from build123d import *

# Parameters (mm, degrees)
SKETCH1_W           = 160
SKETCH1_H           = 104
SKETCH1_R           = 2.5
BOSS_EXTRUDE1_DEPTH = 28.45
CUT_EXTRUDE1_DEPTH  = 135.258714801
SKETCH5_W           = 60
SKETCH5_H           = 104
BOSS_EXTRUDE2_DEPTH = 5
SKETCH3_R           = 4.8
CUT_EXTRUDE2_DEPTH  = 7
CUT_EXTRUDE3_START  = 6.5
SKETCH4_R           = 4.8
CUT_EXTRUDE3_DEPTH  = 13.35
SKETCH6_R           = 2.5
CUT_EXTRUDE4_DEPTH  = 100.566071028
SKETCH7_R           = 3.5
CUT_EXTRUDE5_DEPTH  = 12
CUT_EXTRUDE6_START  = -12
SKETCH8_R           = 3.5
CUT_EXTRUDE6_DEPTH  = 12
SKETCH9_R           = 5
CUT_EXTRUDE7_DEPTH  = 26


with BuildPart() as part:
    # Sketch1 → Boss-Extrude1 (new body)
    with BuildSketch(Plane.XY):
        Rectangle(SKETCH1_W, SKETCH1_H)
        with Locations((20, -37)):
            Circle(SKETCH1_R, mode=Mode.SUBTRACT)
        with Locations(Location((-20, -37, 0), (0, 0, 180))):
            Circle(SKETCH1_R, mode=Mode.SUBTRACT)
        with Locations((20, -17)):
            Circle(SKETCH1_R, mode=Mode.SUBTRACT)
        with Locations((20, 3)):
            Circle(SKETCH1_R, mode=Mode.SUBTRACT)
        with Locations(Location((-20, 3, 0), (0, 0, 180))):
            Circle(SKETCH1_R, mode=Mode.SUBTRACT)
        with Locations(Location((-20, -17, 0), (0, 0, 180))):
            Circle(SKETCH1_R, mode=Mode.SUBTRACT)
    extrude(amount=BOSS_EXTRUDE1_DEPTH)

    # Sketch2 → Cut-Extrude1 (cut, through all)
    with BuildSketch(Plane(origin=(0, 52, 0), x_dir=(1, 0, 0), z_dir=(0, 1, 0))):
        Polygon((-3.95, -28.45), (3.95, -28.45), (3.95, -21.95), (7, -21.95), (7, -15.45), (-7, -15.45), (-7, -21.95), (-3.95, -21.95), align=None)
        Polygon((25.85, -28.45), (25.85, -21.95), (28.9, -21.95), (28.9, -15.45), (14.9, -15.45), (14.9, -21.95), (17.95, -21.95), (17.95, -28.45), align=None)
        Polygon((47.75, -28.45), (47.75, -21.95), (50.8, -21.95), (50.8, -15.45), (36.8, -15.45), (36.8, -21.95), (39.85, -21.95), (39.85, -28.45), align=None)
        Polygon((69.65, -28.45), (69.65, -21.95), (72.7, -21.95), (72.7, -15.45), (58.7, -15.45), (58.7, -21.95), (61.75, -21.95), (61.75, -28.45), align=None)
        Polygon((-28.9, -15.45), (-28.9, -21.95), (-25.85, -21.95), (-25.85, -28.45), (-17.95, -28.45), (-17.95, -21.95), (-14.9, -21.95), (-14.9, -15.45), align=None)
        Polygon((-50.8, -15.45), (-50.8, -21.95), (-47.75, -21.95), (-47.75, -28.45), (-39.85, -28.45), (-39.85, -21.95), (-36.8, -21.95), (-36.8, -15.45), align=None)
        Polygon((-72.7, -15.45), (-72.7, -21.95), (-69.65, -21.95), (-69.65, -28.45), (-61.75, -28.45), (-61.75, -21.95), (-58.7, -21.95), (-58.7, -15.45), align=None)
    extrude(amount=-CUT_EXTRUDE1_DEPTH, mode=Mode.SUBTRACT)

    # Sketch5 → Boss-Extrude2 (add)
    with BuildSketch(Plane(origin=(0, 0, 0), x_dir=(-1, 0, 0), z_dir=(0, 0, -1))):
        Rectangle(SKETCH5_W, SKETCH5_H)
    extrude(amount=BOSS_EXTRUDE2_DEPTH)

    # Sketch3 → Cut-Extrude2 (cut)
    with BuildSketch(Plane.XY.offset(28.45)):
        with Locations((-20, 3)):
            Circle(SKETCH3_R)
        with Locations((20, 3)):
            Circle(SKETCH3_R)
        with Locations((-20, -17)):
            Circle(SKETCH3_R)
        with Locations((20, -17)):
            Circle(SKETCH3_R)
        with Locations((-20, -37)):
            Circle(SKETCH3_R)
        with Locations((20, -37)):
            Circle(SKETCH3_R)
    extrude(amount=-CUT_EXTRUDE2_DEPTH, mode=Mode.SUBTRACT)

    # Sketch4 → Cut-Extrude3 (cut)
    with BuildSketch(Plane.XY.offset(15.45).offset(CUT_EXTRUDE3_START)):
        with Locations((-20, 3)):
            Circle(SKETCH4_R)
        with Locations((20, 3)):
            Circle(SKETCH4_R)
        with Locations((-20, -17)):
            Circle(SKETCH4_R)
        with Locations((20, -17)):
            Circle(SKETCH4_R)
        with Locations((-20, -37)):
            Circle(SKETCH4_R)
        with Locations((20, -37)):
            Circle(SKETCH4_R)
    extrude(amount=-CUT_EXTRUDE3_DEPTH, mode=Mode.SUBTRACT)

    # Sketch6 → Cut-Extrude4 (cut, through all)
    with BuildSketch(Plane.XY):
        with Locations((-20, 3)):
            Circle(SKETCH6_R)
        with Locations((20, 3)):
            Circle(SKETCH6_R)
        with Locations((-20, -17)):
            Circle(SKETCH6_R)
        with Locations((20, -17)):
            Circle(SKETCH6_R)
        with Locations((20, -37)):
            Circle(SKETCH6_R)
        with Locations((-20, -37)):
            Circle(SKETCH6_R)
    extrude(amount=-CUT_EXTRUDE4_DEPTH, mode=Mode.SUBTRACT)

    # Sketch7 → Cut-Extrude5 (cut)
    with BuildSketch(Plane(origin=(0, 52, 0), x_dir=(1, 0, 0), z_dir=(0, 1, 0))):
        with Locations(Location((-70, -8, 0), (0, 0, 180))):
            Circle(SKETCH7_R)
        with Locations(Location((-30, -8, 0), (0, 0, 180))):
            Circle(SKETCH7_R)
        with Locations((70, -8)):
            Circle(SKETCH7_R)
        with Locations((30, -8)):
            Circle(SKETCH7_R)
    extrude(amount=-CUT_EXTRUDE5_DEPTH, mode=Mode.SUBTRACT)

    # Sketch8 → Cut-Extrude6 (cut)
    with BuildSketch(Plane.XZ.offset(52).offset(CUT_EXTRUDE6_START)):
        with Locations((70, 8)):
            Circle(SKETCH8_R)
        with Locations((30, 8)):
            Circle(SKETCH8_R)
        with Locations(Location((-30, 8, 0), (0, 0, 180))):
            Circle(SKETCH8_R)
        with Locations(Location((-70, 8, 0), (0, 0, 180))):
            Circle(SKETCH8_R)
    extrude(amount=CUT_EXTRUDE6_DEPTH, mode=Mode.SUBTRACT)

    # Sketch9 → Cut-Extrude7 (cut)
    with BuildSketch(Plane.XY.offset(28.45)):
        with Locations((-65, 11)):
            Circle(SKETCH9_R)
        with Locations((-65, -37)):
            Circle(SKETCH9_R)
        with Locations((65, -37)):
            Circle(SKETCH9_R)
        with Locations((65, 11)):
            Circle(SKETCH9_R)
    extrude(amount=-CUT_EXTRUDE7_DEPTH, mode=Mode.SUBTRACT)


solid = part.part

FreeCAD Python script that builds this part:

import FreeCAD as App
import Part
import Sketcher

V = App.Vector
Q = App.Units.Quantity

doc = App.newDocument("Part")
params = doc.addObject("Spreadsheet::Sheet", "Params")
for row, (alias, value) in enumerate([
    ("sketch1_diameter", "5 mm"),
    ("sketch1_width", "160 mm"),
    ("sketch1_height", "104 mm"),
    ("pad1_length", "28.45 mm"),
    ("sketch2_width", "14 mm"),
    ("sketch2_width2", "7.9 mm"),
    ("sketch2_height", "6.5 mm"),
    ("sketch3_width", "60 mm"),
    ("sketch3_height", "104 mm"),
    ("pad2_length", "5 mm"),
    ("sketch4_diameter", "9.6 mm"),
    ("pocket2_length", "7 mm"),
    ("sketch5_diameter", "9.6 mm"),
    ("pocket3_length", "13.35 mm"),
    ("sketch6_diameter", "5 mm"),
    ("sketch7_diameter", "7 mm"),
    ("pocket5_length", "12 mm"),
    ("sketch8_diameter", "7 mm"),
    ("pocket6_length", "12 mm"),
    ("sketch9_diameter", "10 mm"),
    ("pocket7_length", "26 mm"),
], start=1):
    params.set(f"A{row}", alias)
    params.set(f"B{row}", "=" + value)
    params.setAlias(f"B{row}", alias)

body = doc.addObject("PartDesign::Body", "Body")

sketch1 = body.newObject("Sketcher::SketchObject", "Sketch")
sketch1.AttachmentSupport = (doc.getObject("XY_Plane"), [""])
sketch1.MapMode = "FlatFace"
sketch1.addGeometry([
    Part.LineSegment(V(-80, 52, 0), V(-80, -52, 0)),
    Part.LineSegment(V(-80, -52, 0), V(80, -52, 0)),
    Part.LineSegment(V(80, -52, 0), V(80, 52, 0)),
    Part.LineSegment(V(80, 52, 0), V(-80, 52, 0)),
    Part.Circle(V(-20, -37, 0), V(0, 0, 1), 2.5),
    Part.Circle(V(20, -37, 0), V(0, 0, 1), 2.5),
    Part.Circle(V(-20, -17, 0), V(0, 0, 1), 2.5),
    Part.Circle(V(-20, 3, 0), V(0, 0, 1), 2.5),
    Part.Circle(V(20, -17, 0), V(0, 0, 1), 2.5),
    Part.Circle(V(20, 3, 0), V(0, 0, 1), 2.5),
], False)
sketch1.addConstraint([
    Sketcher.Constraint("Coincident", 0, 2, 1, 1),
    Sketcher.Constraint("Coincident", 1, 2, 2, 1),
    Sketcher.Constraint("Coincident", 2, 2, 3, 1),
    Sketcher.Constraint("Coincident", 3, 2, 0, 1),
    Sketcher.Constraint("Vertical", 0),
    Sketcher.Constraint("Horizontal", 1),
    Sketcher.Constraint("Vertical", 2),
    Sketcher.Constraint("Horizontal", 3),
    Sketcher.Constraint("Equal", 4, 5),
    Sketcher.Constraint("Equal", 5, 6),
    Sketcher.Constraint("Equal", 6, 7),
    Sketcher.Constraint("Equal", 7, 8),
    Sketcher.Constraint("Equal", 8, 9),
    Sketcher.Constraint("Symmetric", 0, 2, 2, 2, -1, 1),
    Sketcher.Constraint("Symmetric", 4, 3, 5, 3, -2),
    Sketcher.Constraint("Symmetric", 6, 3, 8, 3, -2),
    Sketcher.Constraint("Symmetric", 7, 3, 9, 3, -2),
    Sketcher.Constraint("Vertical", 4, 3, 6, 3),
    Sketcher.Constraint("Vertical", 6, 3, 7, 3),
    Sketcher.Constraint("Diameter", 4, Q("5 mm")),
    Sketcher.Constraint("DistanceX", 1, 1, 1, 2, Q("160 mm")),
    Sketcher.Constraint("DistanceY", 0, 2, 0, 1, Q("104 mm")),
    Sketcher.Constraint("DistanceX", 4, 3, -1, 1, Q("20 mm")),
    Sketcher.Constraint("DistanceY", 4, 3, -1, 1, Q("37 mm")),
    Sketcher.Constraint("DistanceY", 6, 3, -1, 1, Q("17 mm")),
    Sketcher.Constraint("DistanceY", -1, 1, 7, 3, Q("3 mm")),
])
sketch1.setExpression("Constraints[19]", "Params.sketch1_diameter")
sketch1.setExpression("Constraints[20]", "Params.sketch1_width")
sketch1.setExpression("Constraints[21]", "Params.sketch1_height")
pad1 = body.newObject("PartDesign::Pad", "Pad")
pad1.Profile = sketch1
pad1.setExpression("Length", "Params.pad1_length")

sketch2 = body.newObject("Sketcher::SketchObject", "Sketch001")
sketch2.AttachmentSupport = (doc.getObject("XZ_Plane"), [""])
sketch2.MapMode = "FlatFace"
sketch2.AttachmentOffset = App.Placement(V(0, 0, -52), App.Rotation())
sketch2.addGeometry([
    Part.LineSegment(V(-3.95, 28.45, 0), V(3.95, 28.45, 0)),
    Part.LineSegment(V(3.95, 28.45, 0), V(3.95, 21.95, 0)),
    Part.LineSegment(V(3.95, 21.95, 0), V(7, 21.95, 0)),
    Part.LineSegment(V(7, 21.95, 0), V(7, 15.45, 0)),
    Part.LineSegment(V(7, 15.45, 0), V(-7, 15.45, 0)),
    Part.LineSegment(V(-7, 15.45, 0), V(-7, 21.95, 0)),
    Part.LineSegment(V(-7, 21.95, 0), V(-3.95, 21.95, 0)),
    Part.LineSegment(V(-3.95, 21.95, 0), V(-3.95, 28.45, 0)),
    Part.LineSegment(V(25.85, 28.45, 0), V(25.85, 21.95, 0)),
    Part.LineSegment(V(25.85, 21.95, 0), V(28.9, 21.95, 0)),
    Part.LineSegment(V(28.9, 21.95, 0), V(28.9, 15.45, 0)),
    Part.LineSegment(V(28.9, 15.45, 0), V(14.9, 15.45, 0)),
    Part.LineSegment(V(14.9, 15.45, 0), V(14.9, 21.95, 0)),
    Part.LineSegment(V(14.9, 21.95, 0), V(17.95, 21.95, 0)),
    Part.LineSegment(V(17.95, 21.95, 0), V(17.95, 28.45, 0)),
    Part.LineSegment(V(17.95, 28.45, 0), V(25.85, 28.45, 0)),
    Part.LineSegment(V(47.75, 28.45, 0), V(47.75, 21.95, 0)),
    Part.LineSegment(V(47.75, 21.95, 0), V(50.8, 21.95, 0)),
    Part.LineSegment(V(50.8, 21.95, 0), V(50.8, 15.45, 0)),
    Part.LineSegment(V(50.8, 15.45, 0), V(36.8, 15.45, 0)),
    Part.LineSegment(V(36.8, 15.45, 0), V(36.8, 21.95, 0)),
    Part.LineSegment(V(36.8, 21.95, 0), V(39.85, 21.95, 0)),
    Part.LineSegment(V(39.85, 21.95, 0), V(39.85, 28.45, 0)),
    Part.LineSegment(V(39.85, 28.45, 0), V(47.75, 28.45, 0)),
    Part.LineSegment(V(69.65, 28.45, 0), V(69.65, 21.95, 0)),
    Part.LineSegment(V(69.65, 21.95, 0), V(72.7, 21.95, 0)),
    Part.LineSegment(V(72.7, 21.95, 0), V(72.7, 15.45, 0)),
    Part.LineSegment(V(72.7, 15.45, 0), V(58.7, 15.45, 0)),
    Part.LineSegment(V(58.7, 15.45, 0), V(58.7, 21.95, 0)),
    Part.LineSegment(V(58.7, 21.95, 0), V(61.75, 21.95, 0)),
    Part.LineSegment(V(61.75, 21.95, 0), V(61.75, 28.45, 0)),
    Part.LineSegment(V(61.75, 28.45, 0), V(69.65, 28.45, 0)),
    Part.LineSegment(V(-28.9, 15.45, 0), V(-28.9, 21.95, 0)),
    Part.LineSegment(V(-28.9, 21.95, 0), V(-25.85, 21.95, 0)),
    Part.LineSegment(V(-25.85, 21.95, 0), V(-25.85, 28.45, 0)),
    Part.LineSegment(V(-25.85, 28.45, 0), V(-17.95, 28.45, 0)),
    Part.LineSegment(V(-17.95, 28.45, 0), V(-17.95, 21.95, 0)),
    Part.LineSegment(V(-17.95, 21.95, 0), V(-14.9, 21.95, 0)),
    Part.LineSegment(V(-14.9, 21.95, 0), V(-14.9, 15.45, 0)),
    Part.LineSegment(V(-14.9, 15.45, 0), V(-28.9, 15.45, 0)),
    Part.LineSegment(V(-50.8, 15.45, 0), V(-50.8, 21.95, 0)),
    Part.LineSegment(V(-50.8, 21.95, 0), V(-47.75, 21.95, 0)),
    Part.LineSegment(V(-47.75, 21.95, 0), V(-47.75, 28.45, 0)),
    Part.LineSegment(V(-47.75, 28.45, 0), V(-39.85, 28.45, 0)),
    Part.LineSegment(V(-39.85, 28.45, 0), V(-39.85, 21.95, 0)),
    Part.LineSegment(V(-39.85, 21.95, 0), V(-36.8, 21.95, 0)),
    Part.LineSegment(V(-36.8, 21.95, 0), V(-36.8, 15.45, 0)),
    Part.LineSegment(V(-36.8, 15.45, 0), V(-50.8, 15.45, 0)),
    Part.LineSegment(V(-72.7, 15.45, 0), V(-72.7, 21.95, 0)),
    Part.LineSegment(V(-72.7, 21.95, 0), V(-69.65, 21.95, 0)),
    Part.LineSegment(V(-69.65, 21.95, 0), V(-69.65, 28.45, 0)),
    Part.LineSegment(V(-69.65, 28.45, 0), V(-61.75, 28.45, 0)),
    Part.LineSegment(V(-61.75, 28.45, 0), V(-61.75, 21.95, 0)),
    Part.LineSegment(V(-61.75, 21.95, 0), V(-58.7, 21.95, 0)),
    Part.LineSegment(V(-58.7, 21.95, 0), V(-58.7, 15.45, 0)),
    Part.LineSegment(V(-58.7, 15.45, 0), V(-72.7, 15.45, 0)),
], False)
sketch2.addConstraint([
    Sketcher.Constraint("Coincident", 0, 2, 1, 1),
    Sketcher.Constraint("Coincident", 1, 2, 2, 1),
    Sketcher.Constraint("Coincident", 2, 2, 3, 1),
    Sketcher.Constraint("Coincident", 3, 2, 4, 1),
    Sketcher.Constraint("Coincident", 4, 2, 5, 1),
    Sketcher.Constraint("Coincident", 5, 2, 6, 1),
    Sketcher.Constraint("Coincident", 6, 2, 7, 1),
    Sketcher.Constraint("Coincident", 7, 2, 0, 1),
    Sketcher.Constraint("Coincident", 8, 2, 9, 1),
    Sketcher.Constraint("Coincident", 9, 2, 10, 1),
    Sketcher.Constraint("Coincident", 10, 2, 11, 1),
    Sketcher.Constraint("Coincident", 11, 2, 12, 1),
    Sketcher.Constraint("Coincident", 12, 2, 13, 1),
    Sketcher.Constraint("Coincident", 13, 2, 14, 1),
    Sketcher.Constraint("Coincident", 14, 2, 15, 1),
    Sketcher.Constraint("Coincident", 15, 2, 8, 1),
    Sketcher.Constraint("Coincident", 16, 2, 17, 1),
    Sketcher.Constraint("Coincident", 17, 2, 18, 1),
    Sketcher.Constraint("Coincident", 18, 2, 19, 1),
    Sketcher.Constraint("Coincident", 19, 2, 20, 1),
    Sketcher.Constraint("Coincident", 20, 2, 21, 1),
    Sketcher.Constraint("Coincident", 21, 2, 22, 1),
    Sketcher.Constraint("Coincident", 22, 2, 23, 1),
    Sketcher.Constraint("Coincident", 23, 2, 16, 1),
    Sketcher.Constraint("Coincident", 24, 2, 25, 1),
    Sketcher.Constraint("Coincident", 25, 2, 26, 1),
    Sketcher.Constraint("Coincident", 26, 2, 27, 1),
    Sketcher.Constraint("Coincident", 27, 2, 28, 1),
    Sketcher.Constraint("Coincident", 28, 2, 29, 1),
    Sketcher.Constraint("Coincident", 29, 2, 30, 1),
    Sketcher.Constraint("Coincident", 30, 2, 31, 1),
    Sketcher.Constraint("Coincident", 31, 2, 24, 1),
    Sketcher.Constraint("Coincident", 32, 2, 33, 1),
    Sketcher.Constraint("Coincident", 33, 2, 34, 1),
    Sketcher.Constraint("Coincident", 34, 2, 35, 1),
    Sketcher.Constraint("Coincident", 35, 2, 36, 1),
    Sketcher.Constraint("Coincident", 36, 2, 37, 1),
    Sketcher.Constraint("Coincident", 37, 2, 38, 1),
    Sketcher.Constraint("Coincident", 38, 2, 39, 1),
    Sketcher.Constraint("Coincident", 39, 2, 32, 1),
    Sketcher.Constraint("Coincident", 40, 2, 41, 1),
    Sketcher.Constraint("Coincident", 41, 2, 42, 1),
    Sketcher.Constraint("Coincident", 42, 2, 43, 1),
    Sketcher.Constraint("Coincident", 43, 2, 44, 1),
    Sketcher.Constraint("Coincident", 44, 2, 45, 1),
    Sketcher.Constraint("Coincident", 45, 2, 46, 1),
    Sketcher.Constraint("Coincident", 46, 2, 47, 1),
    Sketcher.Constraint("Coincident", 47, 2, 40, 1),
    Sketcher.Constraint("Coincident", 48, 2, 49, 1),
    Sketcher.Constraint("Coincident", 49, 2, 50, 1),
    Sketcher.Constraint("Coincident", 50, 2, 51, 1),
    Sketcher.Constraint("Coincident", 51, 2, 52, 1),
    Sketcher.Constraint("Coincident", 52, 2, 53, 1),
    Sketcher.Constraint("Coincident", 53, 2, 54, 1),
    Sketcher.Constraint("Coincident", 54, 2, 55, 1),
    Sketcher.Constraint("Coincident", 55, 2, 48, 1),
    Sketcher.Constraint("Horizontal", 0),
    Sketcher.Constraint("Vertical", 1),
    Sketcher.Constraint("Horizontal", 2),
    Sketcher.Constraint("Vertical", 3),
    Sketcher.Constraint("Horizontal", 4),
    Sketcher.Constraint("Vertical", 5),
    Sketcher.Constraint("Horizontal", 6),
    Sketcher.Constraint("Vertical", 7),
    Sketcher.Constraint("Vertical", 8),
    Sketcher.Constraint("Horizontal", 9),
    Sketcher.Constraint("Vertical", 10),
    Sketcher.Constraint("Horizontal", 11),
    Sketcher.Constraint("Vertical", 12),
    Sketcher.Constraint("Horizontal", 13),
    Sketcher.Constraint("Vertical", 14),
    Sketcher.Constraint("Horizontal", 15),
    Sketcher.Constraint("Vertical", 16),
    Sketcher.Constraint("Horizontal", 17),
    Sketcher.Constraint("Vertical", 18),
    Sketcher.Constraint("Horizontal", 19),
    Sketcher.Constraint("Vertical", 20),
    Sketcher.Constraint("Horizontal", 21),
    Sketcher.Constraint("Vertical", 22),
    Sketcher.Constraint("Horizontal", 23),
    Sketcher.Constraint("Vertical", 24),
    Sketcher.Constraint("Horizontal", 25),
    Sketcher.Constraint("Vertical", 26),
    Sketcher.Constraint("Horizontal", 27),
    Sketcher.Constraint("Vertical", 28),
    Sketcher.Constraint("Horizontal", 29),
    Sketcher.Constraint("Vertical", 30),
    Sketcher.Constraint("Horizontal", 31),
    Sketcher.Constraint("Vertical", 32),
    Sketcher.Constraint("Horizontal", 33),
    Sketcher.Constraint("Vertical", 34),
    Sketcher.Constraint("Horizontal", 35),
    Sketcher.Constraint("Vertical", 36),
    Sketcher.Constraint("Horizontal", 37),
    Sketcher.Constraint("Vertical", 38),
    Sketcher.Constraint("Horizontal", 39),
    Sketcher.Constraint("Vertical", 40),
    Sketcher.Constraint("Horizontal", 41),
    Sketcher.Constraint("Vertical", 42),
    Sketcher.Constraint("Horizontal", 43),
    Sketcher.Constraint("Vertical", 44),
    Sketcher.Constraint("Horizontal", 45),
    Sketcher.Constraint("Vertical", 46),
    Sketcher.Constraint("Horizontal", 47),
    Sketcher.Constraint("Vertical", 48),
    Sketcher.Constraint("Horizontal", 49),
    Sketcher.Constraint("Vertical", 50),
    Sketcher.Constraint("Horizontal", 51),
    Sketcher.Constraint("Vertical", 52),
    Sketcher.Constraint("Horizontal", 53),
    Sketcher.Constraint("Vertical", 54),
    Sketcher.Constraint("Horizontal", 55),
    Sketcher.Constraint("Symmetric", 2, 2, 5, 2, -2),
    Sketcher.Constraint("Symmetric", 9, 2, 32, 2, -2),
    Sketcher.Constraint("Symmetric", 15, 2, 34, 2, -2),
    Sketcher.Constraint("Symmetric", 13, 2, 36, 2, -2),
    Sketcher.Constraint("Symmetric", 11, 2, 38, 2, -2),
    Sketcher.Constraint("Symmetric", 17, 2, 40, 2, -2),
    Sketcher.Constraint("Symmetric", 23, 2, 42, 2, -2),
    Sketcher.Constraint("Symmetric", 21, 2, 44, 2, -2),
    Sketcher.Constraint("Symmetric", 19, 2, 46, 2, -2),
    Sketcher.Constraint("Symmetric", 25, 2, 48, 2, -2),
    Sketcher.Constraint("Symmetric", 31, 2, 50, 2, -2),
    Sketcher.Constraint("Symmetric", 29, 2, 52, 2, -2),
    Sketcher.Constraint("Symmetric", 27, 2, 54, 2, -2),
    Sketcher.Constraint("Horizontal", 6, 2, 8, 2),
    Sketcher.Constraint("Horizontal", 4, 2, 10, 2),
    Sketcher.Constraint("Horizontal", 9, 2, 12, 2),
    Sketcher.Constraint("Horizontal", 7, 2, 14, 2),
    Sketcher.Constraint("Horizontal", 13, 2, 16, 2),
    Sketcher.Constraint("Horizontal", 11, 2, 18, 2),
    Sketcher.Constraint("Horizontal", 17, 2, 20, 2),
    Sketcher.Constraint("Horizontal", 15, 2, 22, 2),
    Sketcher.Constraint("Horizontal", 21, 2, 24, 2),
    Sketcher.Constraint("Horizontal", 19, 2, 26, 2),
    Sketcher.Constraint("Horizontal", 25, 2, 28, 2),
    Sketcher.Constraint("Horizontal", 23, 2, 30, 2),
    Sketcher.Constraint("Equal", 2, 6),
    Sketcher.Constraint("Equal", 6, 9),
    Sketcher.Constraint("Equal", 4, 11),
    Sketcher.Constraint("Equal", 9, 13),
    Sketcher.Constraint("Equal", 13, 17),
    Sketcher.Constraint("Equal", 11, 19),
    Sketcher.Constraint("Equal", 17, 21),
    Sketcher.Constraint("Equal", 21, 25),
    Sketcher.Constraint("Equal", 19, 27),
    Sketcher.Constraint("Equal", 25, 29),
    Sketcher.Constraint("Equal", 1, 3),
    Sketcher.Constraint("DistanceX", 4, 2, 4, 1, Q("14 mm")),
    Sketcher.Constraint("DistanceX", 0, 1, 0, 2, Q("7.9 mm")),
    Sketcher.Constraint("DistanceY", 1, 2, 1, 1, Q("6.5 mm")),
    Sketcher.Constraint("DistanceX", 35, 2, 7, 2, Q("14 mm")),
    Sketcher.Constraint("DistanceX", 43, 2, 34, 2, Q("14 mm")),
    Sketcher.Constraint("DistanceX", 51, 2, 42, 2, Q("14 mm")),
    Sketcher.Constraint("DistanceY", -1, 1, 0, 2, Q("28.45 mm")),
])
sketch2.setExpression("Constraints[148]", "Params.sketch2_width")
sketch2.setExpression("Constraints[149]", "Params.sketch2_width2")
sketch2.setExpression("Constraints[150]", "Params.sketch2_height")
pocket1 = body.newObject("PartDesign::Pocket", "Pocket")
pocket1.Profile = sketch2
pocket1.Type = "ThroughAll"
pocket1.Reversed = True

sketch3 = body.newObject("Sketcher::SketchObject", "Sketch002")
sketch3.AttachmentSupport = (doc.getObject("XY_Plane"), [""])
sketch3.MapMode = "FlatFace"
sketch3.addGeometry([
    Part.LineSegment(V(30, 52, 0), V(30, -52, 0)),
    Part.LineSegment(V(30, -52, 0), V(-30, -52, 0)),
    Part.LineSegment(V(-30, -52, 0), V(-30, 52, 0)),
    Part.LineSegment(V(-30, 52, 0), V(30, 52, 0)),
], False)
sketch3.addConstraint([
    Sketcher.Constraint("Coincident", 0, 2, 1, 1),
    Sketcher.Constraint("Coincident", 1, 2, 2, 1),
    Sketcher.Constraint("Coincident", 2, 2, 3, 1),
    Sketcher.Constraint("Coincident", 3, 2, 0, 1),
    Sketcher.Constraint("Vertical", 0),
    Sketcher.Constraint("Horizontal", 1),
    Sketcher.Constraint("Vertical", 2),
    Sketcher.Constraint("Horizontal", 3),
    Sketcher.Constraint("Symmetric", 0, 2, 2, 2, -1, 1),
    Sketcher.Constraint("DistanceX", 1, 2, 1, 1, Q("60 mm")),
    Sketcher.Constraint("DistanceY", 0, 2, 0, 1, Q("104 mm")),
])
sketch3.setExpression("Constraints[9]", "Params.sketch3_width")
sketch3.setExpression("Constraints[10]", "Params.sketch3_height")
pad2 = body.newObject("PartDesign::Pad", "Pad001")
pad2.Profile = sketch3
pad2.setExpression("Length", "Params.pad2_length")
pad2.Reversed = True

sketch4 = body.newObject("Sketcher::SketchObject", "Sketch003")
sketch4.AttachmentSupport = (doc.getObject("XY_Plane"), [""])
sketch4.MapMode = "FlatFace"
sketch4.AttachmentOffset = App.Placement(V(0, 0, 28.45), App.Rotation())
sketch4.addGeometry([
    Part.Circle(V(-20, 3, 0), V(0, 0, 1), 4.8),
    Part.Circle(V(20, 3, 0), V(0, 0, 1), 4.8),
    Part.Circle(V(-20, -17, 0), V(0, 0, 1), 4.8),
    Part.Circle(V(20, -17, 0), V(0, 0, 1), 4.8),
    Part.Circle(V(-20, -37, 0), V(0, 0, 1), 4.8),
    Part.Circle(V(20, -37, 0), V(0, 0, 1), 4.8),
], False)
sketch4.addConstraint([
    Sketcher.Constraint("Equal", 0, 1),
    Sketcher.Constraint("Equal", 1, 2),
    Sketcher.Constraint("Equal", 2, 3),
    Sketcher.Constraint("Equal", 3, 4),
    Sketcher.Constraint("Equal", 4, 5),
    Sketcher.Constraint("Symmetric", 0, 3, 1, 3, -2),
    Sketcher.Constraint("Symmetric", 2, 3, 3, 3, -2),
    Sketcher.Constraint("Symmetric", 4, 3, 5, 3, -2),
    Sketcher.Constraint("Vertical", 0, 3, 2, 3),
    Sketcher.Constraint("Vertical", 2, 3, 4, 3),
    Sketcher.Constraint("Diameter", 0, Q("9.6 mm")),
    Sketcher.Constraint("DistanceX", 0, 3, -1, 1, Q("20 mm")),
    Sketcher.Constraint("DistanceY", -1, 1, 0, 3, Q("3 mm")),
    Sketcher.Constraint("DistanceY", 2, 3, -1, 1, Q("17 mm")),
    Sketcher.Constraint("DistanceY", 4, 3, -1, 1, Q("37 mm")),
])
sketch4.setExpression("Constraints[10]", "Params.sketch4_diameter")
pocket2 = body.newObject("PartDesign::Pocket", "Pocket001")
pocket2.Profile = sketch4
pocket2.setExpression("Length", "Params.pocket2_length")

sketch5 = body.newObject("Sketcher::SketchObject", "Sketch004")
sketch5.AttachmentSupport = (doc.getObject("XY_Plane"), [""])
sketch5.MapMode = "FlatFace"
sketch5.AttachmentOffset = App.Placement(V(0, 0, 21.95), App.Rotation())
sketch5.addGeometry([
    Part.Circle(V(-20, 3, 0), V(0, 0, 1), 4.8),
    Part.Circle(V(20, 3, 0), V(0, 0, 1), 4.8),
    Part.Circle(V(-20, -17, 0), V(0, 0, 1), 4.8),
    Part.Circle(V(20, -17, 0), V(0, 0, 1), 4.8),
    Part.Circle(V(-20, -37, 0), V(0, 0, 1), 4.8),
    Part.Circle(V(20, -37, 0), V(0, 0, 1), 4.8),
], False)
sketch5.addConstraint([
    Sketcher.Constraint("Equal", 0, 1),
    Sketcher.Constraint("Equal", 1, 2),
    Sketcher.Constraint("Equal", 2, 3),
    Sketcher.Constraint("Equal", 3, 4),
    Sketcher.Constraint("Equal", 4, 5),
    Sketcher.Constraint("Symmetric", 0, 3, 1, 3, -2),
    Sketcher.Constraint("Symmetric", 2, 3, 3, 3, -2),
    Sketcher.Constraint("Symmetric", 4, 3, 5, 3, -2),
    Sketcher.Constraint("Vertical", 0, 3, 2, 3),
    Sketcher.Constraint("Vertical", 2, 3, 4, 3),
    Sketcher.Constraint("Diameter", 0, Q("9.6 mm")),
    Sketcher.Constraint("DistanceX", 0, 3, -1, 1, Q("20 mm")),
    Sketcher.Constraint("DistanceY", -1, 1, 0, 3, Q("3 mm")),
    Sketcher.Constraint("DistanceY", 2, 3, -1, 1, Q("17 mm")),
    Sketcher.Constraint("DistanceY", 4, 3, -1, 1, Q("37 mm")),
])
sketch5.setExpression("Constraints[10]", "Params.sketch5_diameter")
pocket3 = body.newObject("PartDesign::Pocket", "Pocket002")
pocket3.Profile = sketch5
pocket3.setExpression("Length", "Params.pocket3_length")

sketch6 = body.newObject("Sketcher::SketchObject", "Sketch005")
sketch6.AttachmentSupport = (doc.getObject("XY_Plane"), [""])
sketch6.MapMode = "FlatFace"
sketch6.addGeometry([
    Part.Circle(V(-20, 3, 0), V(0, 0, 1), 2.5),
    Part.Circle(V(20, 3, 0), V(0, 0, 1), 2.5),
    Part.Circle(V(-20, -17, 0), V(0, 0, 1), 2.5),
    Part.Circle(V(20, -17, 0), V(0, 0, 1), 2.5),
    Part.Circle(V(20, -37, 0), V(0, 0, 1), 2.5),
    Part.Circle(V(-20, -37, 0), V(0, 0, 1), 2.5),
], False)
sketch6.addConstraint([
    Sketcher.Constraint("Equal", 0, 1),
    Sketcher.Constraint("Equal", 1, 2),
    Sketcher.Constraint("Equal", 2, 3),
    Sketcher.Constraint("Equal", 3, 4),
    Sketcher.Constraint("Equal", 4, 5),
    Sketcher.Constraint("Symmetric", 0, 3, 1, 3, -2),
    Sketcher.Constraint("Symmetric", 2, 3, 3, 3, -2),
    Sketcher.Constraint("Symmetric", 4, 3, 5, 3, -2),
    Sketcher.Constraint("Vertical", 0, 3, 2, 3),
    Sketcher.Constraint("Vertical", 3, 3, 4, 3),
    Sketcher.Constraint("Diameter", 0, Q("5 mm")),
    Sketcher.Constraint("DistanceX", 0, 3, -1, 1, Q("20 mm")),
    Sketcher.Constraint("DistanceY", -1, 1, 0, 3, Q("3 mm")),
    Sketcher.Constraint("DistanceY", 2, 3, -1, 1, Q("17 mm")),
    Sketcher.Constraint("DistanceY", 4, 3, -1, 1, Q("37 mm")),
])
sketch6.setExpression("Constraints[10]", "Params.sketch6_diameter")
pocket4 = body.newObject("PartDesign::Pocket", "Pocket003")
pocket4.Profile = sketch6
pocket4.Type = "ThroughAll"

sketch7 = body.newObject("Sketcher::SketchObject", "Sketch006")
sketch7.AttachmentSupport = (doc.getObject("XZ_Plane"), [""])
sketch7.MapMode = "FlatFace"
sketch7.AttachmentOffset = App.Placement(V(0, 0, -52), App.Rotation())
sketch7.addGeometry([
    Part.Circle(V(-70, 8, 0), V(0, 0, 1), 3.5),
    Part.Circle(V(-30, 8, 0), V(0, 0, 1), 3.5),
    Part.Circle(V(70, 8, 0), V(0, 0, 1), 3.5),
    Part.Circle(V(30, 8, 0), V(0, 0, 1), 3.5),
], False)
sketch7.addConstraint([
    Sketcher.Constraint("Equal", 0, 1),
    Sketcher.Constraint("Equal", 1, 2),
    Sketcher.Constraint("Equal", 2, 3),
    Sketcher.Constraint("Symmetric", 0, 3, 2, 3, -2),
    Sketcher.Constraint("Symmetric", 1, 3, 3, 3, -2),
    Sketcher.Constraint("Horizontal", 0, 3, 1, 3),
    Sketcher.Constraint("Diameter", 0, Q("7 mm")),
    Sketcher.Constraint("DistanceX", 0, 3, -1, 1, Q("70 mm")),
    Sketcher.Constraint("DistanceY", -1, 1, 0, 3, Q("8 mm")),
    Sketcher.Constraint("DistanceX", 1, 3, -1, 1, Q("30 mm")),
])
sketch7.setExpression("Constraints[6]", "Params.sketch7_diameter")
pocket5 = body.newObject("PartDesign::Pocket", "Pocket004")
pocket5.Profile = sketch7
pocket5.setExpression("Length", "Params.pocket5_length")
pocket5.Reversed = True

sketch8 = body.newObject("Sketcher::SketchObject", "Sketch007")
sketch8.AttachmentSupport = (doc.getObject("XZ_Plane"), [""])
sketch8.MapMode = "FlatFace"
sketch8.AttachmentOffset = App.Placement(V(0, 0, 40), App.Rotation())
sketch8.addGeometry([
    Part.Circle(V(70, 8, 0), V(0, 0, 1), 3.5),
    Part.Circle(V(30, 8, 0), V(0, 0, 1), 3.5),
    Part.Circle(V(-30, 8, 0), V(0, 0, 1), 3.5),
    Part.Circle(V(-70, 8, 0), V(0, 0, 1), 3.5),
], False)
sketch8.addConstraint([
    Sketcher.Constraint("Equal", 0, 1),
    Sketcher.Constraint("Equal", 1, 2),
    Sketcher.Constraint("Equal", 2, 3),
    Sketcher.Constraint("Symmetric", 1, 3, 2, 3, -2),
    Sketcher.Constraint("Symmetric", 0, 3, 3, 3, -2),
    Sketcher.Constraint("Horizontal", 0, 3, 1, 3),
    Sketcher.Constraint("Diameter", 0, Q("7 mm")),
    Sketcher.Constraint("DistanceX", -1, 1, 0, 3, Q("70 mm")),
    Sketcher.Constraint("DistanceY", -1, 1, 0, 3, Q("8 mm")),
    Sketcher.Constraint("DistanceX", -1, 1, 1, 3, Q("30 mm")),
])
sketch8.setExpression("Constraints[6]", "Params.sketch8_diameter")
pocket6 = body.newObject("PartDesign::Pocket", "Pocket005")
pocket6.Profile = sketch8
pocket6.setExpression("Length", "Params.pocket6_length")
pocket6.Reversed = True

sketch9 = body.newObject("Sketcher::SketchObject", "Sketch008")
sketch9.AttachmentSupport = (doc.getObject("XY_Plane"), [""])
sketch9.MapMode = "FlatFace"
sketch9.AttachmentOffset = App.Placement(V(0, 0, 28.45), App.Rotation())
sketch9.addGeometry([
    Part.Circle(V(-65, 11, 0), V(0, 0, 1), 5),
    Part.Circle(V(-65, -37, 0), V(0, 0, 1), 5),
    Part.Circle(V(65, -37, 0), V(0, 0, 1), 5),
    Part.Circle(V(65, 11, 0), V(0, 0, 1), 5),
], False)
sketch9.addConstraint([
    Sketcher.Constraint("Equal", 0, 1),
    Sketcher.Constraint("Equal", 1, 2),
    Sketcher.Constraint("Equal", 2, 3),
    Sketcher.Constraint("Symmetric", 1, 3, 2, 3, -2),
    Sketcher.Constraint("Symmetric", 0, 3, 3, 3, -2),
    Sketcher.Constraint("Vertical", 0, 3, 1, 3),
    Sketcher.Constraint("Diameter", 0, Q("10 mm")),
    Sketcher.Constraint("DistanceX", 0, 3, -1, 1, Q("65 mm")),
    Sketcher.Constraint("DistanceY", -1, 1, 0, 3, Q("11 mm")),
    Sketcher.Constraint("DistanceY", 1, 3, -1, 1, Q("37 mm")),
])
sketch9.setExpression("Constraints[6]", "Params.sketch9_diameter")
pocket7 = body.newObject("PartDesign::Pocket", "Pocket006")
pocket7.Profile = sketch9
pocket7.setExpression("Length", "Params.pocket7_length")

doc.recompute()
